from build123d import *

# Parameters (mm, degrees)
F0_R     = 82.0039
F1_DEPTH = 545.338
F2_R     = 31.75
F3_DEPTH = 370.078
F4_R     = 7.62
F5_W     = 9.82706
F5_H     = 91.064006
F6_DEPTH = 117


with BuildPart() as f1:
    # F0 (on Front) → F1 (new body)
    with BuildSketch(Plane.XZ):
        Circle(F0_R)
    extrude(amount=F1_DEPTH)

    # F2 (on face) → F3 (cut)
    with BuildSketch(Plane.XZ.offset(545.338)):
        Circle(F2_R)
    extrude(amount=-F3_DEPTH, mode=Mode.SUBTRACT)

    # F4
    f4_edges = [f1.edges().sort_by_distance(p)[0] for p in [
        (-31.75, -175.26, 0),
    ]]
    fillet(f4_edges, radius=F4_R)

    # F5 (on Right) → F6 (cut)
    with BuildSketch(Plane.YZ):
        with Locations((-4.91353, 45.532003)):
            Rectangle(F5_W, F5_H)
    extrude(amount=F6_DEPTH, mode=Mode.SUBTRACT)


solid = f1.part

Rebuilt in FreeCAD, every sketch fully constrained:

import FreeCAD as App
import Part
import Sketcher
Q = App.Units.Quantity


def edges_at(feature, points):
    """Names of the edges that pass closest to the given points."""
    edges = feature.Shape.Edges
    near = lambda p: min(range(len(edges)), key=lambda i: edges[i].distToShape(Part.Vertex(*p))[0])
    return sorted({f"Edge{near(p) + 1}" for p in points})


def add_polygon(sketch, points):
    """Adds a closed chain of lines whose ends are joined by coincident constraints."""
    first, n = sketch.GeometryCount, len(points)
    for a, b in zip(points, points[1:] + points[:1]):
        sketch.addGeometry(Part.LineSegment(App.Vector(*a, 0), App.Vector(*b, 0)), False)
    for i in range(n):
        sketch.addConstraint(Sketcher.Constraint("Coincident", first + i, 2, first + (i + 1) % n, 1))

doc = App.newDocument("Part")
body = doc.addObject("PartDesign::Body", "Body")

# Sketch on XZ plane
sketch1 = body.newObject("Sketcher::SketchObject", "Sketch")
sketch1.AttachmentSupport = (doc.getObject("XZ_Plane"), [""])
sketch1.MapMode = "FlatFace"
sketch1.addGeometry(Part.Circle(App.Vector(0, 0, 0), App.Vector(0, 0, 1), 82), False)
sketch1.addConstraint([
    Sketcher.Constraint("Coincident", 0, 3, -1, 1),
    Sketcher.Constraint("Diameter", 0, Q("6.457 in")),
])
pad1 = body.newObject("PartDesign::Pad", "Pad")
pad1.Profile = sketch1
pad1.Length = Q("21.47 in")

# Sketch on XZ plane
sketch2 = body.newObject("Sketcher::SketchObject", "Sketch001")
sketch2.AttachmentSupport = (doc.getObject("XZ_Plane"), [""])
sketch2.MapMode = "FlatFace"
sketch2.AttachmentOffset = App.Placement(App.Vector(0, 0, 21.47 * 25.4), App.Rotation())
sketch2.addGeometry(Part.Circle(App.Vector(0, 0, 0), App.Vector(0, 0, 1), 32), False)
sketch2.addConstraint([
    Sketcher.Constraint("Coincident", 0, 3, -1, 1),
    Sketcher.Constraint("Diameter", 0, Q("2.5 in")),
])
pocket1 = body.newObject("PartDesign::Pocket", "Pocket")
pocket1.Profile = sketch2
pocket1.Length = Q("14.57 in")
doc.recompute()

fillet = body.newObject("PartDesign::Fillet", "Fillet")
fillet.Base = (pocket1, edges_at(pocket1, [(-31.75, -175.26, 0)]))
fillet.Radius = Q("0.3 in")

# Sketch on YZ plane
sketch3 = body.newObject("Sketcher::SketchObject", "Sketch002")
sketch3.AttachmentSupport = (doc.getObject("YZ_Plane"), [""])
sketch3.MapMode = "FlatFace"
add_polygon(sketch3, [(-10, 91), (-10, 0), (0, 0), (0, 91)])  # lines 0-3
sketch3.addConstraint([
    Sketcher.Constraint("Vertical", 0),
    Sketcher.Constraint("Horizontal", 1),
    Sketcher.Constraint("Vertical", 2),
    Sketcher.Constraint("Horizontal", 3),
    Sketcher.Constraint("Coincident", 1, 2, -1, 1),
    Sketcher.Constraint("DistanceX", 1, 1, 1, 2, Q("9.82706 mm")),
    Sketcher.Constraint("DistanceY", 0, 2, 0, 1, Q("91.064006 mm")),
])
pocket2 = body.newObject("PartDesign::Pocket", "Pocket001")
pocket2.Profile = sketch3
pocket2.Length = 117
pocket2.Reversed = True

doc.recompute()
